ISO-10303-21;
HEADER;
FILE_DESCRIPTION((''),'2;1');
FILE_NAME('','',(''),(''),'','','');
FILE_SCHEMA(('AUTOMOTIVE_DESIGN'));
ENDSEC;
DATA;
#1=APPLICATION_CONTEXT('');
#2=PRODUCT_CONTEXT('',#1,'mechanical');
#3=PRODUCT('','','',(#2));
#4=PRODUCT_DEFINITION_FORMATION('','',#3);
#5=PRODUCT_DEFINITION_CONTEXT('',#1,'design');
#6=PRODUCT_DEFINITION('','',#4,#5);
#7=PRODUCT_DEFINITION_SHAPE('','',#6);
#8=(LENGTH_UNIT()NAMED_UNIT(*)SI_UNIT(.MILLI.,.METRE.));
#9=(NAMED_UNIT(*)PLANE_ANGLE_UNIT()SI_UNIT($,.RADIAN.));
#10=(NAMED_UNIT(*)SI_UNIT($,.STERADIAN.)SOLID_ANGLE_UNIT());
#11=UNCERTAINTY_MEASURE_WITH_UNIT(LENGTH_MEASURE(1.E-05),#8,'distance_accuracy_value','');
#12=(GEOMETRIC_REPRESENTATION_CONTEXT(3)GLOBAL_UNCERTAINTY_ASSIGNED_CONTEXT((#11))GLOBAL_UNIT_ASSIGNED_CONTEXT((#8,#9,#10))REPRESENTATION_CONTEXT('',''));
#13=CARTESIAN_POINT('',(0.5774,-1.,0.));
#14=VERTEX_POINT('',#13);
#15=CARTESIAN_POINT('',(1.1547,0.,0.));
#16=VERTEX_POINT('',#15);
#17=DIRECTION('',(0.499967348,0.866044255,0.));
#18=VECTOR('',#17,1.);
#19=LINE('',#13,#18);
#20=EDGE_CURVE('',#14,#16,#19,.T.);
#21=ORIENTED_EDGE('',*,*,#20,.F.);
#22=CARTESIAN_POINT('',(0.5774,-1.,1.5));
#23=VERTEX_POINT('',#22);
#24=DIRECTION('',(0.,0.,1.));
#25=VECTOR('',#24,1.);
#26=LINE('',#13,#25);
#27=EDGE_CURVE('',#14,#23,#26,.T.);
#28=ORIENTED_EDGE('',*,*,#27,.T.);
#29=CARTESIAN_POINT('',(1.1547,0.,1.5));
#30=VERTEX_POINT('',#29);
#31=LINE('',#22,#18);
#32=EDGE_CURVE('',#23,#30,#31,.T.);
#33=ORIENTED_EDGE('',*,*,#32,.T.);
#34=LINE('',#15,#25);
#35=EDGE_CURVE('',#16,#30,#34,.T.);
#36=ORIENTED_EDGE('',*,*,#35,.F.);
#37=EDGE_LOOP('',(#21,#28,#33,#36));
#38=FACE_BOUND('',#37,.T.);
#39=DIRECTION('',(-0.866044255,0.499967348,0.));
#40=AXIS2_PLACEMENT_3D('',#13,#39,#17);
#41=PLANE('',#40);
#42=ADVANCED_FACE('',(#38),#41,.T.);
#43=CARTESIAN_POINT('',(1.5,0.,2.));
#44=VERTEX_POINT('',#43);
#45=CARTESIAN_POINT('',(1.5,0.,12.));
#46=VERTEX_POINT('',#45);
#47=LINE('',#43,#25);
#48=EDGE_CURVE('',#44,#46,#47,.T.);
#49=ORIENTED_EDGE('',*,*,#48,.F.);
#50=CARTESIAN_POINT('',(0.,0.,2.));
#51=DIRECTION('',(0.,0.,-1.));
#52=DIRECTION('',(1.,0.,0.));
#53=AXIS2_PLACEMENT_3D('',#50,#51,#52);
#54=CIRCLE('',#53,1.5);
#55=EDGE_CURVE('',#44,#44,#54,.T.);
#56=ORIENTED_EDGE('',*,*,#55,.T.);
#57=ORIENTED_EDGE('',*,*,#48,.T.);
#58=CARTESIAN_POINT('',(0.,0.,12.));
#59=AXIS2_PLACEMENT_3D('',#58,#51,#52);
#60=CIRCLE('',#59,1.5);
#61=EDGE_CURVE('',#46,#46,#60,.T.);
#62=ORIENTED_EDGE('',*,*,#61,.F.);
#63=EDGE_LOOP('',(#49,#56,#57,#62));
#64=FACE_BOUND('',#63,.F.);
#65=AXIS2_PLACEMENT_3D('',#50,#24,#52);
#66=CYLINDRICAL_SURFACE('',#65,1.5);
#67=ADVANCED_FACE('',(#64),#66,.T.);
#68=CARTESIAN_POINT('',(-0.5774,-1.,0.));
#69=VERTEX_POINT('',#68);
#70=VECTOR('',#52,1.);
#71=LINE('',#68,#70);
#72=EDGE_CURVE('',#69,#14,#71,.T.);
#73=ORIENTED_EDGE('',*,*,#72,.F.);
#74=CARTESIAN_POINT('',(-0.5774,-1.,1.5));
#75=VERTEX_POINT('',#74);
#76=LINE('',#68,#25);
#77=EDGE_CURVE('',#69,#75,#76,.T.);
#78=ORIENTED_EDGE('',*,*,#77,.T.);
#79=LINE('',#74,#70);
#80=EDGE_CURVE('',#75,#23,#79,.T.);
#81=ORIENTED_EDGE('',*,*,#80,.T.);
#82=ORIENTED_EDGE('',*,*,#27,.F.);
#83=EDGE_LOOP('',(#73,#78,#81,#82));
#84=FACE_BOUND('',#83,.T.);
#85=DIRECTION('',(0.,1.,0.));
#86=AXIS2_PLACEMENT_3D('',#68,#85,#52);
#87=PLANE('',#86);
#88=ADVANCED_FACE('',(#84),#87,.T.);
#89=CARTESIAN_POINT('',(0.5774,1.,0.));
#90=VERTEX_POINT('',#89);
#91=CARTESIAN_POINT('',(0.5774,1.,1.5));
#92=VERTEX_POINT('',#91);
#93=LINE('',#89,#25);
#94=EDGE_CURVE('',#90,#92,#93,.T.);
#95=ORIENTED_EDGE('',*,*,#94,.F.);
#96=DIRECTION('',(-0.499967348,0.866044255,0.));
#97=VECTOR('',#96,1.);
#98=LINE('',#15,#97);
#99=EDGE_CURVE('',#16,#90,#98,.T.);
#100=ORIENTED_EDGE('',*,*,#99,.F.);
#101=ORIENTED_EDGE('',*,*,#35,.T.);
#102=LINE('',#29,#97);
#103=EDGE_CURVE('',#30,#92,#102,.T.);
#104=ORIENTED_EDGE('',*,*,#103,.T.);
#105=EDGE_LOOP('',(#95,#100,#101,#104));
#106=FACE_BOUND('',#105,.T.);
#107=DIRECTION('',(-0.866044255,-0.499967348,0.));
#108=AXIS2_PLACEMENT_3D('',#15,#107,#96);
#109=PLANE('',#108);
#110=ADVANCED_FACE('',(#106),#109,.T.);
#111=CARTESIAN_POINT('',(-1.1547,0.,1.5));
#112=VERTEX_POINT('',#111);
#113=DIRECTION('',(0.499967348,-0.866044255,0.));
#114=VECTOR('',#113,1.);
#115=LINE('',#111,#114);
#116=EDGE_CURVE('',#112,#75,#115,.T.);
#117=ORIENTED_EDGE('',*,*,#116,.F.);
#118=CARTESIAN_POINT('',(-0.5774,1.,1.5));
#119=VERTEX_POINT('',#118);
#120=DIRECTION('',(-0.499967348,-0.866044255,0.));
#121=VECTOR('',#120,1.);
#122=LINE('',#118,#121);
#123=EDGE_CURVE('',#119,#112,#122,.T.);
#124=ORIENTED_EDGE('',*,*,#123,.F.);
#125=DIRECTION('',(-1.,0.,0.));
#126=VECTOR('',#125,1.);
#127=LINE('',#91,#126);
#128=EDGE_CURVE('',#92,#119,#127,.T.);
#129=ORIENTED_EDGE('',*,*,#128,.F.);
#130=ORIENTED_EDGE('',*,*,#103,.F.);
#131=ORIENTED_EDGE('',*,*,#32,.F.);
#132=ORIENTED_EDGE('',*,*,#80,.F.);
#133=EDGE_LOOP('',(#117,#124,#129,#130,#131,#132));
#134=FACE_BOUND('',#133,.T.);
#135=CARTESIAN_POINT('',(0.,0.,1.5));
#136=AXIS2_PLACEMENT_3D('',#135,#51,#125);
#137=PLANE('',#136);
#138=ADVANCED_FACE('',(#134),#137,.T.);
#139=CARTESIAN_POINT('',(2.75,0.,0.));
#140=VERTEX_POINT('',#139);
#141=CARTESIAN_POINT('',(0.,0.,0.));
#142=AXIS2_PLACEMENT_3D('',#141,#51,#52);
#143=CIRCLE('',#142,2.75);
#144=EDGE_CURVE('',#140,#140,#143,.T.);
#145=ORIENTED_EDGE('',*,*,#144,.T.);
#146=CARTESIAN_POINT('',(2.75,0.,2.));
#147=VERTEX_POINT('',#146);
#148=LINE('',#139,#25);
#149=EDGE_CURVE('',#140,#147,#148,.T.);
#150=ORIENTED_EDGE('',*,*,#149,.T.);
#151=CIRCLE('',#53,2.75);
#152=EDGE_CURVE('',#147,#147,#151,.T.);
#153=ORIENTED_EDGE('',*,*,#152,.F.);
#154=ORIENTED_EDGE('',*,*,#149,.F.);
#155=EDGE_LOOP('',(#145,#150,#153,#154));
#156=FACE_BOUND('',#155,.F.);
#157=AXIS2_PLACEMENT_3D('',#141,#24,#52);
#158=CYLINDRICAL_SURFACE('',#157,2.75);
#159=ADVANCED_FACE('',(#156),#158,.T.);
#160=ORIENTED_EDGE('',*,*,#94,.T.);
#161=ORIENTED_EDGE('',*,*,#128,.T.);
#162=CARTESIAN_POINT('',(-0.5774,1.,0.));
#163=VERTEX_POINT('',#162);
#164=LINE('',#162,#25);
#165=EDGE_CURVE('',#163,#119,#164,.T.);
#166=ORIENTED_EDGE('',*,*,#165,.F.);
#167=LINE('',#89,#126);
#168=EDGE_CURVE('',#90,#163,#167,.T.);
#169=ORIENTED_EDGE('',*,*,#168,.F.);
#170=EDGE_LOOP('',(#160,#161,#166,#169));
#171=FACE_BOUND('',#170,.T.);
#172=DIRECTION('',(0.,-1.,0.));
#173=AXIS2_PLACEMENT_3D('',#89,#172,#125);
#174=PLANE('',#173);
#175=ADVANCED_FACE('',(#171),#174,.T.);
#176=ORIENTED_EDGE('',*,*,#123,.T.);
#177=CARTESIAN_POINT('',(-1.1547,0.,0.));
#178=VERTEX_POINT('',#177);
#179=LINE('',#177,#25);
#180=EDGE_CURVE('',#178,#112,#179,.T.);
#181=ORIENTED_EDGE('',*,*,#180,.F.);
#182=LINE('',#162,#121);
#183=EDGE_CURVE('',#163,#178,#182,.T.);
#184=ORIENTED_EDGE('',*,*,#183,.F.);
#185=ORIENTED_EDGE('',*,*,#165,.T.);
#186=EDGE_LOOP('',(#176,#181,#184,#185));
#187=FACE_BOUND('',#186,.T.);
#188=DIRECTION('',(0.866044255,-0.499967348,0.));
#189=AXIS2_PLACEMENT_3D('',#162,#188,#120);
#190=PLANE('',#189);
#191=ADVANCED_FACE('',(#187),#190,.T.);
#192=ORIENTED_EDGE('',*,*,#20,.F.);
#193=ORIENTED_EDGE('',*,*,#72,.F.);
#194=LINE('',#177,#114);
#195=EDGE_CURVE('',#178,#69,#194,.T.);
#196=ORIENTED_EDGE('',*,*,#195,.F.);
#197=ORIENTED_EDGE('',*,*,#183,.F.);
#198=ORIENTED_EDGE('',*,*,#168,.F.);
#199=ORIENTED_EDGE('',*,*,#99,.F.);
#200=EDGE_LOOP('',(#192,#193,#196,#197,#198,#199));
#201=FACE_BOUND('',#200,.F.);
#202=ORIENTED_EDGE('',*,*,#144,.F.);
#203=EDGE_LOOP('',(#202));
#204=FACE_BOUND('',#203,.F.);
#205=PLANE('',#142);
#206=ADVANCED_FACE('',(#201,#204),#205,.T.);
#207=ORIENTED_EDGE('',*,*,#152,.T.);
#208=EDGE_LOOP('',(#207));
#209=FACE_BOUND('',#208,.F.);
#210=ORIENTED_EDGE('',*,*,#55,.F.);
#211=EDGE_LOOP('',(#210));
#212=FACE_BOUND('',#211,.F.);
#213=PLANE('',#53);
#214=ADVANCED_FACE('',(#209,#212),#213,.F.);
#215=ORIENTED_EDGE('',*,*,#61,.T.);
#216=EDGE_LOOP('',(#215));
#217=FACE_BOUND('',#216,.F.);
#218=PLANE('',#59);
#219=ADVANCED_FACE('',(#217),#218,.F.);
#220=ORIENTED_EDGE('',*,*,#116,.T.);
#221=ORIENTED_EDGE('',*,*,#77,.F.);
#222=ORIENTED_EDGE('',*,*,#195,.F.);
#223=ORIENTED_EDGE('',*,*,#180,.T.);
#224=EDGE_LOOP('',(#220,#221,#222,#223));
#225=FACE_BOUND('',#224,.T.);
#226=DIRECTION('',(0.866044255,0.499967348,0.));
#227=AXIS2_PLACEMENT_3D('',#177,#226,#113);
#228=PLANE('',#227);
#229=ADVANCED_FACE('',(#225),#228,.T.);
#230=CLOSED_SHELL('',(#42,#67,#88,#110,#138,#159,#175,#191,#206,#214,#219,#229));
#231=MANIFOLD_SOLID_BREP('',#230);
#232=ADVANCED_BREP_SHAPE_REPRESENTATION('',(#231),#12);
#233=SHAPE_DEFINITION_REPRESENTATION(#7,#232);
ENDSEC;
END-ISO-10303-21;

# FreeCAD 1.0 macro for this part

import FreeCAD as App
import Part
import Sketcher
Q = App.Units.Quantity

doc = App.newDocument("Part")
params = doc.addObject("Spreadsheet::Sheet", "Params")
for row, (alias, value) in enumerate([
    ("sketch1_height", "10 mm"),
    ("sketch1_height2", "2 mm"),
    ("sketch1_width", "1.5 mm"),
    ("sketch1_width2", "2.75 mm"),
    ("revolution_angle", "360 deg"),
    ("pocket1_length", "1.5 mm"),
], start=1):
    params.set(f"A{row}", alias)
    params.set(f"B{row}", "=" + value)
    params.setAlias(f"B{row}", alias)

body = doc.addObject("PartDesign::Body", "Body")

# Sketch on XZ plane
sketch1 = body.newObject("Sketcher::SketchObject", "Sketch")
sketch1.AttachmentSupport = (doc.getObject("XZ_Plane"), [""])
sketch1.MapMode = "FlatFace"
sketch1.addGeometry([
    Part.LineSegment(App.Vector(2.75, 0, 0), App.Vector(0, 0, 0)),  # 0
    Part.LineSegment(App.Vector(0, 0, 0), App.Vector(0, 12, 0)),  # 1
    Part.LineSegment(App.Vector(0, 12, 0), App.Vector(1.5, 12, 0)),  # 2
    Part.LineSegment(App.Vector(1.5, 12, 0), App.Vector(1.5, 2, 0)),  # 3
    Part.LineSegment(App.Vector(1.5, 2, 0), App.Vector(2.75, 2, 0)),  # 4
    Part.LineSegment(App.Vector(2.75, 2, 0), App.Vector(2.75, 0, 0)),  # 5
], False)
sketch1.addConstraint([
    Sketcher.Constraint("Coincident", 0, 2, 1, 1),
    Sketcher.Constraint("Coincident", 1, 2, 2, 1),
    Sketcher.Constraint("Coincident", 2, 2, 3, 1),
    Sketcher.Constraint("Coincident", 3, 2, 4, 1),
    Sketcher.Constraint("Coincident", 4, 2, 5, 1),
    Sketcher.Constraint("Coincident", 5, 2, 0, 1),
    Sketcher.Constraint("Horizontal", 0),
    Sketcher.Constraint("Vertical", 1),
    Sketcher.Constraint("Horizontal", 2),
    Sketcher.Constraint("Vertical", 3),
    Sketcher.Constraint("Horizontal", 4),
    Sketcher.Constraint("Vertical", 5),
    Sketcher.Constraint("Coincident", 0, 2, -1, 1),
    Sketcher.Constraint("DistanceY", 3, 2, 3, 1, Q("10 mm")),
    Sketcher.Constraint("DistanceY", 5, 2, 5, 1, Q("2 mm")),
    Sketcher.Constraint("DistanceX", 2, 1, 2, 2, Q("1.5 mm")),
    Sketcher.Constraint("DistanceX", 0, 2, 0, 1, Q("2.75 mm")),
])
sketch1.setExpression("Constraints[13]", "Params.sketch1_height")
sketch1.setExpression("Constraints[14]", "Params.sketch1_height2")
sketch1.setExpression("Constraints[15]", "Params.sketch1_width")
sketch1.setExpression("Constraints[16]", "Params.sketch1_width2")
revolution = body.newObject("PartDesign::Revolution", "Revolution")
revolution.Profile = sketch1
revolution.ReferenceAxis = (sketch1, ["V_Axis"])
revolution.setExpression("Angle", "Params.revolution_angle")

# Sketch on XY plane
sketch2 = body.newObject("Sketcher::SketchObject", "Sketch001")
sketch2.AttachmentSupport = (doc.getObject("XY_Plane"), [""])
sketch2.MapMode = "FlatFace"
sketch2.addGeometry([
    Part.LineSegment(App.Vector(-1.1547, 0, 0), App.Vector(-0.5774, 1, 0)),  # 0
    Part.LineSegment(App.Vector(-0.5774, 1, 0), App.Vector(0.5774, 1, 0)),  # 1
    Part.LineSegment(App.Vector(0.5774, 1, 0), App.Vector(1.1547, 0, 0)),  # 2
    Part.LineSegment(App.Vector(1.1547, 0, 0), App.Vector(0.5774, -1, 0)),  # 3
    Part.LineSegment(App.Vector(0.5774, -1, 0), App.Vector(-0.5774, -1, 0)),  # 4
    Part.LineSegment(App.Vector(-0.5774, -1, 0), App.Vector(-1.1547, 0, 0)),  # 5
], False)
sketch2.addConstraint([
    Sketcher.Constraint("Coincident", 0, 2, 1, 1),
    Sketcher.Constraint("Coincident", 1, 2, 2, 1),
    Sketcher.Constraint("Coincident", 2, 2, 3, 1),
    Sketcher.Constraint("Coincident", 3, 2, 4, 1),
    Sketcher.Constraint("Coincident", 4, 2, 5, 1),
    Sketcher.Constraint("Coincident", 5, 2, 0, 1),
    Sketcher.Constraint("Horizontal", 1),
    Sketcher.Constraint("Horizontal", 4),
    Sketcher.Constraint("Symmetric", 0, 2, 3, 2, -1, 1),
    Sketcher.Constraint("Symmetric", 2, 2, 5, 2, -1, 1),
    Sketcher.Constraint("PointOnObject", 2, 2, -1),
    Sketcher.Constraint("Parallel", 2, 5),
    Sketcher.Constraint("Vertical", 1, 2, 3, 2),
    Sketcher.Constraint("DistanceY", 3, 2, 1, 2, Q("2 mm")),
    Sketcher.Constraint("DistanceX", 1, 1, 1, 2, Q("1.1548 mm")),
    Sketcher.Constraint("DistanceX", 0, 2, 2, 2, Q("1.732 mm")),
])
pocket1 = body.newObject("PartDesign::Pocket", "Pocket")
pocket1.Profile = sketch2
pocket1.setExpression("Length", "Params.pocket1_length")
pocket1.Reversed = True

doc.recompute()
